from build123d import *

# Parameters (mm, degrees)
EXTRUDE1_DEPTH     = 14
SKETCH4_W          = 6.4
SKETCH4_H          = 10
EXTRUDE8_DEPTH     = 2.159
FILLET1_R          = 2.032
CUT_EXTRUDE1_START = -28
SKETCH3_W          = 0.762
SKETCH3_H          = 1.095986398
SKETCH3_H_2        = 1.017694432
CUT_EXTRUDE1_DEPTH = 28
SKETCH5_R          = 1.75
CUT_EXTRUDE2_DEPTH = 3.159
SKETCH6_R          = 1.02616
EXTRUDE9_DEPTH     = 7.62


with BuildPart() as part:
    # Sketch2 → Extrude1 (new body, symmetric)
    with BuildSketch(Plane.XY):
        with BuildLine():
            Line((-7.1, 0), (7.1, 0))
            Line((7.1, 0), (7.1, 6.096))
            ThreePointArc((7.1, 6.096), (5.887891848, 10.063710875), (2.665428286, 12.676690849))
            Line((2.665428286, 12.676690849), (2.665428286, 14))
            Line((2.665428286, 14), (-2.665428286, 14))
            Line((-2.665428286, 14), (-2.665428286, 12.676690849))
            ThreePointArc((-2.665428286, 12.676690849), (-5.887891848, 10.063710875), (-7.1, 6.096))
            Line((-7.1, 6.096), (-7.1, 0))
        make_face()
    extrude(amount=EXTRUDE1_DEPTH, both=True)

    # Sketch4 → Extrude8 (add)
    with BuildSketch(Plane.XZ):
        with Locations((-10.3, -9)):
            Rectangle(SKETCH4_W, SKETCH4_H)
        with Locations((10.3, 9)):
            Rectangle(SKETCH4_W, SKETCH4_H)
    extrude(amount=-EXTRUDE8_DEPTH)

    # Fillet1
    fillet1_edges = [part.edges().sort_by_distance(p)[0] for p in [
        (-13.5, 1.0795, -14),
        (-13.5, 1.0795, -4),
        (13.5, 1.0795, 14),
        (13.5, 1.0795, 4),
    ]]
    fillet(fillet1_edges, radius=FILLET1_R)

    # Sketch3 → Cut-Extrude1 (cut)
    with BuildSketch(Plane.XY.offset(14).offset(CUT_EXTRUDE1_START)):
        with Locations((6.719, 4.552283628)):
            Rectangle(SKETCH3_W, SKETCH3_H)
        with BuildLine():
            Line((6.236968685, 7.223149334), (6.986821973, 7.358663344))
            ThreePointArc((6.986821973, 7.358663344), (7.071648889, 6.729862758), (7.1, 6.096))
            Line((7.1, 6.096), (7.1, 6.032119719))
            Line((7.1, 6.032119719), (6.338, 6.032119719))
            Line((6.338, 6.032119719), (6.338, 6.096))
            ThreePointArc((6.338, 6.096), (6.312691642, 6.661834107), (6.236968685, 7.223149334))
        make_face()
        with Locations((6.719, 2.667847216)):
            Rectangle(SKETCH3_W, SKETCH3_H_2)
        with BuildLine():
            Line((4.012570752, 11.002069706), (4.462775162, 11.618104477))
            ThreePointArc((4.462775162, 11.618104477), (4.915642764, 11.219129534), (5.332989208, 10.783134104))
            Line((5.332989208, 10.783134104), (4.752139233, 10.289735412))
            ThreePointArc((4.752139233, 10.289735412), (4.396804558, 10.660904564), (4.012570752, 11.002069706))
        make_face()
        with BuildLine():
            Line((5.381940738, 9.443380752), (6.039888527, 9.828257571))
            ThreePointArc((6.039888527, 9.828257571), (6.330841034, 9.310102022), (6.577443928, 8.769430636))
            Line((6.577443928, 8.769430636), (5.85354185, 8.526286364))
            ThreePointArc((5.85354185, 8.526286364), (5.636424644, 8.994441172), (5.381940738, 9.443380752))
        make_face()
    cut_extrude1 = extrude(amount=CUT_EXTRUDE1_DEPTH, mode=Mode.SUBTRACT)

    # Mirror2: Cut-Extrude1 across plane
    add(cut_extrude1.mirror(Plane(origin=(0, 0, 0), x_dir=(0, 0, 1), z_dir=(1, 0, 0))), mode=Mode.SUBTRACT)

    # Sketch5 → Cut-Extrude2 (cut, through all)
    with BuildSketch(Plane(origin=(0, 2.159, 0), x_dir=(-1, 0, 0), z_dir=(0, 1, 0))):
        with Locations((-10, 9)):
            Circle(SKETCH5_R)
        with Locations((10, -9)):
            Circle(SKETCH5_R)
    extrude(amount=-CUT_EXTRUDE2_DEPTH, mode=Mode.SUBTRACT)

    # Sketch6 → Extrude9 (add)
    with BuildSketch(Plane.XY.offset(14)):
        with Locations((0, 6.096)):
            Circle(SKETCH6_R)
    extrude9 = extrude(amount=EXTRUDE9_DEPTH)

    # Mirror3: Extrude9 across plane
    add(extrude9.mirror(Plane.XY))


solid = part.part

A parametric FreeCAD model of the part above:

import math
import FreeCAD as App
import Part
import Sketcher

V = App.Vector
Q = App.Units.Quantity


def edges_at(feature, points):
    """Names of the edges that pass closest to the given points."""
    edges = feature.Shape.Edges
    near = lambda p: min(range(len(edges)), key=lambda i: edges[i].distToShape(Part.Vertex(*p))[0])
    return sorted({f"Edge{near(p) + 1}" for p in points})


def add_polygon(sketch, points):
    """Adds a closed chain of lines whose ends are joined by coincident constraints."""
    first, n = sketch.GeometryCount, len(points)
    for a, b in zip(points, points[1:] + points[:1]):
        sketch.addGeometry(Part.LineSegment(App.Vector(*a, 0), App.Vector(*b, 0)), False)
    for i in range(n):
        sketch.addConstraint(Sketcher.Constraint("Coincident", first + i, 2, first + (i + 1) % n, 1))

doc = App.newDocument("Part")
params = doc.addObject("Spreadsheet::Sheet", "Params")
for row, (alias, value) in enumerate([
    ("sketch1_radius", "7.1 mm"),
    ("pad1_length", "28 mm"),
    ("sketch2_height", "10 mm"),
    ("sketch2_width", "6.4 mm"),
    ("pad2_length", "2.159 mm"),
    ("fillet_radius", "2.032 mm"),
    ("sketch3_radius", "7.1 mm"),
    ("pocket1_length", "28 mm"),
    ("sketch4_diameter", "3.5 mm"),
    ("pad3_length", "7.62 mm"),
], start=1):
    params.set(f"A{row}", alias)
    params.set(f"B{row}", "=" + value)
    params.setAlias(f"B{row}", alias)

body = doc.addObject("PartDesign::Body", "Body")

# Sketch on XY plane
sketch1 = body.newObject("Sketcher::SketchObject", "Sketch")
sketch1.AttachmentSupport = (doc.getObject("XY_Plane"), [""])
sketch1.MapMode = "FlatFace"
sketch1.addGeometry(Part.LineSegment(V(-7.1, 0, 0), V(7.1, 0, 0)), False)
sketch1.addGeometry(Part.LineSegment(V(7.1, 0, 0), V(7.1, 6.1, 0)), False)
sketch1.addGeometry(Part.ArcOfCircle(Part.Circle(V(0, 6.1, 0), V(0, 0, 1), 7.1), math.radians(0), math.radians(68)), False)
sketch1.addGeometry(Part.LineSegment(V(2.7, 12.7, 0), V(2.7, 14, 0)), False)
sketch1.addGeometry(Part.LineSegment(V(2.7, 14, 0), V(-2.7, 14, 0)), False)
sketch1.addGeometry(Part.LineSegment(V(-2.7, 14, 0), V(-2.7, 12.7, 0)), False)
sketch1.addGeometry(Part.ArcOfCircle(Part.Circle(V(0, 6.1, 0), V(0, 0, 1), 7.1), math.radians(112), math.radians(180)), False)
sketch1.addGeometry(Part.LineSegment(V(-7.1, 6.1, 0), V(-7.1, 0, 0)), False)
sketch1.addConstraint(Sketcher.Constraint("Coincident", 0, 2, 1, 1))
sketch1.addConstraint(Sketcher.Constraint("Tangent", 1, 2, 2, 1))
sketch1.addConstraint(Sketcher.Constraint("Coincident", 2, 2, 3, 1))
sketch1.addConstraint(Sketcher.Constraint("Coincident", 3, 2, 4, 1))
sketch1.addConstraint(Sketcher.Constraint("Coincident", 4, 2, 5, 1))
sketch1.addConstraint(Sketcher.Constraint("Coincident", 5, 2, 6, 1))
sketch1.addConstraint(Sketcher.Constraint("Tangent", 6, 2, 7, 1))
sketch1.addConstraint(Sketcher.Constraint("Coincident", 7, 2, 0, 1))
sketch1.addConstraint(Sketcher.Constraint("Horizontal", 0))
sketch1.addConstraint(Sketcher.Constraint("Vertical", 1))
sketch1.addConstraint(Sketcher.Constraint("Vertical", 3))
sketch1.addConstraint(Sketcher.Constraint("Horizontal", 4))
sketch1.addConstraint(Sketcher.Constraint("Vertical", 5))
sketch1.addConstraint(Sketcher.Constraint("Vertical", 7))
sketch1.addConstraint(Sketcher.Constraint("Coincident", 6, 3, 2, 3))
sketch1.addConstraint(Sketcher.Constraint("Equal", 2, 6))
sketch1.addConstraint(Sketcher.Constraint("Symmetric", 0, 2, 7, 2, -1, 1))
sketch1.addConstraint(Sketcher.Constraint("Horizontal", 2, 2, 5, 2))
sketch1.addConstraint(Sketcher.Constraint("Radius", 2, Q("7.1 mm")))
sketch1.addConstraint(Sketcher.Constraint("DistanceY", -1, 1, 3, 2, Q("14 mm")))
sketch1.addConstraint(Sketcher.Constraint("DistanceY", 1, 1, 1, 2, Q("6.096 mm")))
sketch1.addConstraint(Sketcher.Constraint("DistanceY", 3, 1, 3, 2, Q("1.323309 mm")))
sketch1.setExpression("Constraints[18]", "Params.sketch1_radius")
pad1 = body.newObject("PartDesign::Pad", "Pad")
pad1.Profile = sketch1
pad1.setExpression("Length", "Params.pad1_length")
pad1.Midplane = True

# Sketch on XZ plane
sketch2 = body.newObject("Sketcher::SketchObject", "Sketch001")
sketch2.AttachmentSupport = (doc.getObject("XZ_Plane"), [""])
sketch2.MapMode = "FlatFace"
add_polygon(sketch2, [(-14, -4), (-14, -14), (-7, -14), (-7, -4)])  # lines 0-3
add_polygon(sketch2, [(7, 14), (7, 4), (14, 4), (14, 14)])  # lines 4-7
sketch2.addConstraint(Sketcher.Constraint("Vertical", 0))
sketch2.addConstraint(Sketcher.Constraint("Horizontal", 1))
sketch2.addConstraint(Sketcher.Constraint("Vertical", 2))
sketch2.addConstraint(Sketcher.Constraint("Horizontal", 3))
sketch2.addConstraint(Sketcher.Constraint("Vertical", 4))
sketch2.addConstraint(Sketcher.Constraint("Horizontal", 5))
sketch2.addConstraint(Sketcher.Constraint("Vertical", 6))
sketch2.addConstraint(Sketcher.Constraint("Horizontal", 7))
sketch2.addConstraint(Sketcher.Constraint("Symmetric", 2, 2, 4, 2, -1, 1))
sketch2.addConstraint(Sketcher.Constraint("Symmetric", 0, 2, 6, 2, -1, 1))
sketch2.addConstraint(Sketcher.Constraint("DistanceY", 0, 2, 0, 1, Q("10 mm")))
sketch2.addConstraint(Sketcher.Constraint("DistanceX", 1, 1, 1, 2, Q("6.4 mm")))
sketch2.addConstraint(Sketcher.Constraint("DistanceY", 0, 2, -1, 1, Q("14 mm")))
sketch2.addConstraint(Sketcher.Constraint("DistanceX", 3, 2, 5, 2, Q("27 mm")))
sketch2.setExpression("Constraints[18]", "Params.sketch2_height")
sketch2.setExpression("Constraints[19]", "Params.sketch2_width")
pad2 = body.newObject("PartDesign::Pad", "Pad001")
pad2.Profile = sketch2
pad2.setExpression("Length", "Params.pad2_length")
pad2.Reversed = True
doc.recompute()

fillet = body.newObject("PartDesign::Fillet", "Fillet")
fillet.Base = (pad2, edges_at(pad2, [
    (-13.5, 1.079, -14),
    (-13.5, 1.079, -4),
    (13.5, 1.079, 14),
    (13.5, 1.079, 4),
]))
fillet.setExpression("Radius", "Params.fillet_radius")

# Sketch on XY plane
sketch3 = body.newObject("Sketcher::SketchObject", "Sketch002")
sketch3.AttachmentSupport = (doc.getObject("XY_Plane"), [""])
sketch3.MapMode = "FlatFace"
sketch3.AttachmentOffset = App.Placement(V(0, 0, -14), App.Rotation())
add_polygon(sketch3, [(6.34, 5.1), (6.34, 4), (7.1, 4), (7.1, 5.1)])  # lines 0-3
sketch3.addGeometry(Part.LineSegment(V(6.99, 7.36, 0), V(6.24, 7.22, 0)), False)  # 4
sketch3.addGeometry(Part.ArcOfCircle(Part.Circle(V(0, 6.1, 0), V(0, 0, 1), 6.34), math.radians(0), math.radians(10.24)), False)  # 5
sketch3.addGeometry(Part.LineSegment(V(6.34, 6.1, 0), V(6.34, 6.03, 0)), False)  # 6
sketch3.addGeometry(Part.LineSegment(V(6.34, 6.03, 0), V(7.1, 6.03, 0)), False)  # 7
sketch3.addGeometry(Part.LineSegment(V(7.1, 6.03, 0), V(7.1, 6.1, 0)), False)  # 8
sketch3.addGeometry(Part.ArcOfCircle(Part.Circle(V(0, 6.1, 0), V(0, 0, 1), 7.1), math.radians(0), math.radians(10.24)), False)  # 9
add_polygon(sketch3, [(6.34, 3.18), (6.34, 2.16), (7.1, 2.16), (7.1, 3.18)])  # lines 10-13
sketch3.addGeometry(Part.LineSegment(V(4.46, 11.62, 0), V(4.01, 11, 0)), False)  # 14
sketch3.addGeometry(Part.ArcOfCircle(Part.Circle(V(0, 6.1, 0), V(0, 0, 1), 6.34), math.radians(41.43), math.radians(50.72)), False)  # 15
sketch3.addGeometry(Part.LineSegment(V(4.75, 10.29, 0), V(5.33, 10.78, 0)), False)  # 16
sketch3.addGeometry(Part.ArcOfCircle(Part.Circle(V(0, 6.1, 0), V(0, 0, 1), 7.1), math.radians(41.31), math.radians(51.06)), False)  # 17
sketch3.addGeometry(Part.LineSegment(V(6.04, 9.83, 0), V(5.38, 9.44, 0)), False)  # 18
sketch3.addGeometry(Part.ArcOfCircle(Part.Circle(V(0, 6.1, 0), V(0, 0, 1), 6.34), math.radians(22.55), math.radians(31.88)), False)  # 19
sketch3.addGeometry(Part.LineSegment(V(5.85, 8.53, 0), V(6.58, 8.77, 0)), False)  # 20
sketch3.addGeometry(Part.ArcOfCircle(Part.Circle(V(0, 6.1, 0), V(0, 0, 1), 7.1), math.radians(22.12), math.radians(31.71)), False)  # 21
sketch3.addConstraint(Sketcher.Constraint("Coincident", 4, 2, 5, 2))
sketch3.addConstraint(Sketcher.Constraint("Tangent", 5, 1, 6, 1))
sketch3.addConstraint(Sketcher.Constraint("Coincident", 6, 2, 7, 1))
sketch3.addConstraint(Sketcher.Constraint("Coincident", 7, 2, 8, 1))
sketch3.addConstraint(Sketcher.Constraint("Tangent", 8, 2, 9, 1))
sketch3.addConstraint(Sketcher.Constraint("Coincident", 9, 2, 4, 1))
sketch3.addConstraint(Sketcher.Constraint("Coincident", 14, 2, 15, 2))
sketch3.addConstraint(Sketcher.Constraint("Coincident", 15, 1, 16, 1))
sketch3.addConstraint(Sketcher.Constraint("Coincident", 16, 2, 17, 1))
sketch3.addConstraint(Sketcher.Constraint("Coincident", 17, 2, 14, 1))
sketch3.addConstraint(Sketcher.Constraint("Coincident", 18, 2, 19, 2))
sketch3.addConstraint(Sketcher.Constraint("Coincident", 19, 1, 20, 1))
sketch3.addConstraint(Sketcher.Constraint("Coincident", 20, 2, 21, 1))
sketch3.addConstraint(Sketcher.Constraint("Coincident", 21, 2, 18, 1))
sketch3.addConstraint(Sketcher.Constraint("Vertical", 0))
sketch3.addConstraint(Sketcher.Constraint("Horizontal", 1))
sketch3.addConstraint(Sketcher.Constraint("Vertical", 2))
sketch3.addConstraint(Sketcher.Constraint("Horizontal", 3))
sketch3.addConstraint(Sketcher.Constraint("Vertical", 6))
sketch3.addConstraint(Sketcher.Constraint("Horizontal", 7))
sketch3.addConstraint(Sketcher.Constraint("Vertical", 8))
sketch3.addConstraint(Sketcher.Constraint("Vertical", 10))
sketch3.addConstraint(Sketcher.Constraint("Horizontal", 11))
sketch3.addConstraint(Sketcher.Constraint("Vertical", 12))
sketch3.addConstraint(Sketcher.Constraint("Horizontal", 13))
sketch3.addConstraint(Sketcher.Constraint("Coincident", 9, 3, 5, 3))
sketch3.addConstraint(Sketcher.Constraint("Coincident", 15, 3, 5, 3))
sketch3.addConstraint(Sketcher.Constraint("Coincident", 17, 3, 5, 3))
sketch3.addConstraint(Sketcher.Constraint("Coincident", 19, 3, 5, 3))
sketch3.addConstraint(Sketcher.Constraint("Coincident", 21, 3, 5, 3))
sketch3.addConstraint(Sketcher.Constraint("Equal", 5, 15))
sketch3.addConstraint(Sketcher.Constraint("Equal", 9, 17))
sketch3.addConstraint(Sketcher.Constraint("Equal", 15, 19))
sketch3.addConstraint(Sketcher.Constraint("Equal", 17, 21))
sketch3.addConstraint(Sketcher.Constraint("PointOnObject", 5, 3, -2))
sketch3.addConstraint(Sketcher.Constraint("Vertical", 3, 2, 5, 1))
sketch3.addConstraint(Sketcher.Constraint("Vertical", 2, 2, 7, 2))
sketch3.addConstraint(Sketcher.Constraint("Vertical", 6, 2, 10, 2))
sketch3.addConstraint(Sketcher.Constraint("Vertical", 8, 2, 11, 2))
sketch3.addConstraint(Sketcher.Constraint("Radius", 9, Q("7.1 mm")))
sketch3.addConstraint(Sketcher.Constraint("Radius", 5, Q("6.338 mm")))
sketch3.addConstraint(Sketcher.Constraint("DistanceY", -1, 1, 5, 3, Q("6.096 mm")))
sketch3.addConstraint(Sketcher.Constraint("DistanceY", -1, 1, 10, 2, Q("2.159 mm")))
sketch3.addConstraint(Sketcher.Constraint("DistanceY", 6, 2, 6, 1, Q("0.06388 mm")))
sketch3.addConstraint(Sketcher.Constraint("DistanceY", 15, 1, 16, 2, Q("0.493399 mm")))
sketch3.addConstraint(Sketcher.Constraint("DistanceX", 15, 1, 18, 2, Q("0.629802 mm")))
sketch3.addConstraint(Sketcher.Constraint("DistanceX", 18, 2, 19, 1, Q("0.471601 mm")))
sketch3.addConstraint(Sketcher.Constraint("DistanceX", 16, 2, 21, 2, Q("0.706899 mm")))
sketch3.addConstraint(Sketcher.Constraint("Distance", 14, Q("0.763009 mm")))
sketch3.addConstraint(Sketcher.Constraint("DistanceY", 0, 2, 0, 1, Q("1.095986 mm")))
sketch3.addConstraint(Sketcher.Constraint("DistanceY", 10, 2, 10, 1, Q("1.017694 mm")))
sketch3.addConstraint(Sketcher.Constraint("DistanceY", -1, 1, 0, 2, Q("4.00429 mm")))
sketch3.addConstraint(Sketcher.Constraint("DistanceX", -1, 1, 4, 2, Q("6.236969 mm")))
sketch3.addConstraint(Sketcher.Constraint("DistanceX", -1, 1, 9, 2, Q("6.986822 mm")))
sketch3.addConstraint(Sketcher.Constraint("DistanceX", -1, 1, 14, 2, Q("4.012571 mm")))
sketch3.addConstraint(Sketcher.Constraint("DistanceX", -1, 1, 15, 1, Q("4.752139 mm")))
sketch3.addConstraint(Sketcher.Constraint("DistanceY", -1, 1, 20, 2, Q("8.769431 mm")))
sketch3.setExpression("Constraints[47]", "Params.sketch3_radius")
pocket1 = body.newObject("PartDesign::Pocket", "Pocket")
pocket1.Profile = sketch3
pocket1.setExpression("Length", "Params.pocket1_length")
pocket1.Reversed = True
doc.recompute()

mirrored = body.newObject("PartDesign::Mirrored", "Mirrored")
mirrored.Originals = [pocket1]
mirrored.MirrorPlane = (doc.getObject("YZ_Plane"), [""])
body.Tip = mirrored

# Sketch on XZ plane
sketch4 = body.newObject("Sketcher::SketchObject", "Sketch003")
sketch4.AttachmentSupport = (doc.getObject("XZ_Plane"), [""])
sketch4.MapMode = "FlatFace"
sketch4.AttachmentOffset = App.Placement(V(0, 0, -2.159), App.Rotation())
sketch4.addGeometry(Part.Circle(V(10, 9, 0), V(0, 0, 1), 1.8), False)
sketch4.addGeometry(Part.Circle(V(-10, -9, 0), V(0, 0, 1), 1.8), False)
sketch4.addConstraint(Sketcher.Constraint("Equal", 0, 1))
sketch4.addConstraint(Sketcher.Constraint("Symmetric", 0, 3, 1, 3, -1, 1))
sketch4.addConstraint(Sketcher.Constraint("Diameter", 0, Q("3.5 mm")))
sketch4.addConstraint(Sketcher.Constraint("DistanceX", -1, 1, 0, 3, Q("10 mm")))
sketch4.addConstraint(Sketcher.Constraint("DistanceY", -1, 1, 0, 3, Q("9 mm")))
sketch4.setExpression("Constraints[2]", "Params.sketch4_diameter")
pocket2 = body.newObject("PartDesign::Pocket", "Pocket001")
pocket2.Profile = sketch4
pocket2.Type = "ThroughAll"
pocket2.Reversed = True

# Sketch on XY plane
sketch5 = body.newObject("Sketcher::SketchObject", "Sketch004")
sketch5.AttachmentSupport = (doc.getObject("XY_Plane"), [""])
sketch5.MapMode = "FlatFace"
sketch5.AttachmentOffset = App.Placement(V(0, 0, 14), App.Rotation())
sketch5.addGeometry(Part.Circle(V(0, 6.1, 0), V(0, 0, 1), 1), False)
sketch5.addConstraint(Sketcher.Constraint("PointOnObject", 0, 3, -2))
sketch5.addConstraint(Sketcher.Constraint("Diameter", 0, Q("2.05232 mm")))
sketch5.addConstraint(Sketcher.Constraint("DistanceY", -1, 1, 0, 3, Q("6.096 mm")))
pad3 = body.newObject("PartDesign::Pad", "Pad002")
pad3.Profile = sketch5
pad3.setExpression("Length", "Params.pad3_length")
doc.recompute()

mirrored2 = body.newObject("PartDesign::Mirrored", "Mirrored001")
mirrored2.Originals = [pad3]
mirrored2.MirrorPlane = (doc.getObject("XY_Plane"), [""])
body.Tip = mirrored2

doc.recompute()
